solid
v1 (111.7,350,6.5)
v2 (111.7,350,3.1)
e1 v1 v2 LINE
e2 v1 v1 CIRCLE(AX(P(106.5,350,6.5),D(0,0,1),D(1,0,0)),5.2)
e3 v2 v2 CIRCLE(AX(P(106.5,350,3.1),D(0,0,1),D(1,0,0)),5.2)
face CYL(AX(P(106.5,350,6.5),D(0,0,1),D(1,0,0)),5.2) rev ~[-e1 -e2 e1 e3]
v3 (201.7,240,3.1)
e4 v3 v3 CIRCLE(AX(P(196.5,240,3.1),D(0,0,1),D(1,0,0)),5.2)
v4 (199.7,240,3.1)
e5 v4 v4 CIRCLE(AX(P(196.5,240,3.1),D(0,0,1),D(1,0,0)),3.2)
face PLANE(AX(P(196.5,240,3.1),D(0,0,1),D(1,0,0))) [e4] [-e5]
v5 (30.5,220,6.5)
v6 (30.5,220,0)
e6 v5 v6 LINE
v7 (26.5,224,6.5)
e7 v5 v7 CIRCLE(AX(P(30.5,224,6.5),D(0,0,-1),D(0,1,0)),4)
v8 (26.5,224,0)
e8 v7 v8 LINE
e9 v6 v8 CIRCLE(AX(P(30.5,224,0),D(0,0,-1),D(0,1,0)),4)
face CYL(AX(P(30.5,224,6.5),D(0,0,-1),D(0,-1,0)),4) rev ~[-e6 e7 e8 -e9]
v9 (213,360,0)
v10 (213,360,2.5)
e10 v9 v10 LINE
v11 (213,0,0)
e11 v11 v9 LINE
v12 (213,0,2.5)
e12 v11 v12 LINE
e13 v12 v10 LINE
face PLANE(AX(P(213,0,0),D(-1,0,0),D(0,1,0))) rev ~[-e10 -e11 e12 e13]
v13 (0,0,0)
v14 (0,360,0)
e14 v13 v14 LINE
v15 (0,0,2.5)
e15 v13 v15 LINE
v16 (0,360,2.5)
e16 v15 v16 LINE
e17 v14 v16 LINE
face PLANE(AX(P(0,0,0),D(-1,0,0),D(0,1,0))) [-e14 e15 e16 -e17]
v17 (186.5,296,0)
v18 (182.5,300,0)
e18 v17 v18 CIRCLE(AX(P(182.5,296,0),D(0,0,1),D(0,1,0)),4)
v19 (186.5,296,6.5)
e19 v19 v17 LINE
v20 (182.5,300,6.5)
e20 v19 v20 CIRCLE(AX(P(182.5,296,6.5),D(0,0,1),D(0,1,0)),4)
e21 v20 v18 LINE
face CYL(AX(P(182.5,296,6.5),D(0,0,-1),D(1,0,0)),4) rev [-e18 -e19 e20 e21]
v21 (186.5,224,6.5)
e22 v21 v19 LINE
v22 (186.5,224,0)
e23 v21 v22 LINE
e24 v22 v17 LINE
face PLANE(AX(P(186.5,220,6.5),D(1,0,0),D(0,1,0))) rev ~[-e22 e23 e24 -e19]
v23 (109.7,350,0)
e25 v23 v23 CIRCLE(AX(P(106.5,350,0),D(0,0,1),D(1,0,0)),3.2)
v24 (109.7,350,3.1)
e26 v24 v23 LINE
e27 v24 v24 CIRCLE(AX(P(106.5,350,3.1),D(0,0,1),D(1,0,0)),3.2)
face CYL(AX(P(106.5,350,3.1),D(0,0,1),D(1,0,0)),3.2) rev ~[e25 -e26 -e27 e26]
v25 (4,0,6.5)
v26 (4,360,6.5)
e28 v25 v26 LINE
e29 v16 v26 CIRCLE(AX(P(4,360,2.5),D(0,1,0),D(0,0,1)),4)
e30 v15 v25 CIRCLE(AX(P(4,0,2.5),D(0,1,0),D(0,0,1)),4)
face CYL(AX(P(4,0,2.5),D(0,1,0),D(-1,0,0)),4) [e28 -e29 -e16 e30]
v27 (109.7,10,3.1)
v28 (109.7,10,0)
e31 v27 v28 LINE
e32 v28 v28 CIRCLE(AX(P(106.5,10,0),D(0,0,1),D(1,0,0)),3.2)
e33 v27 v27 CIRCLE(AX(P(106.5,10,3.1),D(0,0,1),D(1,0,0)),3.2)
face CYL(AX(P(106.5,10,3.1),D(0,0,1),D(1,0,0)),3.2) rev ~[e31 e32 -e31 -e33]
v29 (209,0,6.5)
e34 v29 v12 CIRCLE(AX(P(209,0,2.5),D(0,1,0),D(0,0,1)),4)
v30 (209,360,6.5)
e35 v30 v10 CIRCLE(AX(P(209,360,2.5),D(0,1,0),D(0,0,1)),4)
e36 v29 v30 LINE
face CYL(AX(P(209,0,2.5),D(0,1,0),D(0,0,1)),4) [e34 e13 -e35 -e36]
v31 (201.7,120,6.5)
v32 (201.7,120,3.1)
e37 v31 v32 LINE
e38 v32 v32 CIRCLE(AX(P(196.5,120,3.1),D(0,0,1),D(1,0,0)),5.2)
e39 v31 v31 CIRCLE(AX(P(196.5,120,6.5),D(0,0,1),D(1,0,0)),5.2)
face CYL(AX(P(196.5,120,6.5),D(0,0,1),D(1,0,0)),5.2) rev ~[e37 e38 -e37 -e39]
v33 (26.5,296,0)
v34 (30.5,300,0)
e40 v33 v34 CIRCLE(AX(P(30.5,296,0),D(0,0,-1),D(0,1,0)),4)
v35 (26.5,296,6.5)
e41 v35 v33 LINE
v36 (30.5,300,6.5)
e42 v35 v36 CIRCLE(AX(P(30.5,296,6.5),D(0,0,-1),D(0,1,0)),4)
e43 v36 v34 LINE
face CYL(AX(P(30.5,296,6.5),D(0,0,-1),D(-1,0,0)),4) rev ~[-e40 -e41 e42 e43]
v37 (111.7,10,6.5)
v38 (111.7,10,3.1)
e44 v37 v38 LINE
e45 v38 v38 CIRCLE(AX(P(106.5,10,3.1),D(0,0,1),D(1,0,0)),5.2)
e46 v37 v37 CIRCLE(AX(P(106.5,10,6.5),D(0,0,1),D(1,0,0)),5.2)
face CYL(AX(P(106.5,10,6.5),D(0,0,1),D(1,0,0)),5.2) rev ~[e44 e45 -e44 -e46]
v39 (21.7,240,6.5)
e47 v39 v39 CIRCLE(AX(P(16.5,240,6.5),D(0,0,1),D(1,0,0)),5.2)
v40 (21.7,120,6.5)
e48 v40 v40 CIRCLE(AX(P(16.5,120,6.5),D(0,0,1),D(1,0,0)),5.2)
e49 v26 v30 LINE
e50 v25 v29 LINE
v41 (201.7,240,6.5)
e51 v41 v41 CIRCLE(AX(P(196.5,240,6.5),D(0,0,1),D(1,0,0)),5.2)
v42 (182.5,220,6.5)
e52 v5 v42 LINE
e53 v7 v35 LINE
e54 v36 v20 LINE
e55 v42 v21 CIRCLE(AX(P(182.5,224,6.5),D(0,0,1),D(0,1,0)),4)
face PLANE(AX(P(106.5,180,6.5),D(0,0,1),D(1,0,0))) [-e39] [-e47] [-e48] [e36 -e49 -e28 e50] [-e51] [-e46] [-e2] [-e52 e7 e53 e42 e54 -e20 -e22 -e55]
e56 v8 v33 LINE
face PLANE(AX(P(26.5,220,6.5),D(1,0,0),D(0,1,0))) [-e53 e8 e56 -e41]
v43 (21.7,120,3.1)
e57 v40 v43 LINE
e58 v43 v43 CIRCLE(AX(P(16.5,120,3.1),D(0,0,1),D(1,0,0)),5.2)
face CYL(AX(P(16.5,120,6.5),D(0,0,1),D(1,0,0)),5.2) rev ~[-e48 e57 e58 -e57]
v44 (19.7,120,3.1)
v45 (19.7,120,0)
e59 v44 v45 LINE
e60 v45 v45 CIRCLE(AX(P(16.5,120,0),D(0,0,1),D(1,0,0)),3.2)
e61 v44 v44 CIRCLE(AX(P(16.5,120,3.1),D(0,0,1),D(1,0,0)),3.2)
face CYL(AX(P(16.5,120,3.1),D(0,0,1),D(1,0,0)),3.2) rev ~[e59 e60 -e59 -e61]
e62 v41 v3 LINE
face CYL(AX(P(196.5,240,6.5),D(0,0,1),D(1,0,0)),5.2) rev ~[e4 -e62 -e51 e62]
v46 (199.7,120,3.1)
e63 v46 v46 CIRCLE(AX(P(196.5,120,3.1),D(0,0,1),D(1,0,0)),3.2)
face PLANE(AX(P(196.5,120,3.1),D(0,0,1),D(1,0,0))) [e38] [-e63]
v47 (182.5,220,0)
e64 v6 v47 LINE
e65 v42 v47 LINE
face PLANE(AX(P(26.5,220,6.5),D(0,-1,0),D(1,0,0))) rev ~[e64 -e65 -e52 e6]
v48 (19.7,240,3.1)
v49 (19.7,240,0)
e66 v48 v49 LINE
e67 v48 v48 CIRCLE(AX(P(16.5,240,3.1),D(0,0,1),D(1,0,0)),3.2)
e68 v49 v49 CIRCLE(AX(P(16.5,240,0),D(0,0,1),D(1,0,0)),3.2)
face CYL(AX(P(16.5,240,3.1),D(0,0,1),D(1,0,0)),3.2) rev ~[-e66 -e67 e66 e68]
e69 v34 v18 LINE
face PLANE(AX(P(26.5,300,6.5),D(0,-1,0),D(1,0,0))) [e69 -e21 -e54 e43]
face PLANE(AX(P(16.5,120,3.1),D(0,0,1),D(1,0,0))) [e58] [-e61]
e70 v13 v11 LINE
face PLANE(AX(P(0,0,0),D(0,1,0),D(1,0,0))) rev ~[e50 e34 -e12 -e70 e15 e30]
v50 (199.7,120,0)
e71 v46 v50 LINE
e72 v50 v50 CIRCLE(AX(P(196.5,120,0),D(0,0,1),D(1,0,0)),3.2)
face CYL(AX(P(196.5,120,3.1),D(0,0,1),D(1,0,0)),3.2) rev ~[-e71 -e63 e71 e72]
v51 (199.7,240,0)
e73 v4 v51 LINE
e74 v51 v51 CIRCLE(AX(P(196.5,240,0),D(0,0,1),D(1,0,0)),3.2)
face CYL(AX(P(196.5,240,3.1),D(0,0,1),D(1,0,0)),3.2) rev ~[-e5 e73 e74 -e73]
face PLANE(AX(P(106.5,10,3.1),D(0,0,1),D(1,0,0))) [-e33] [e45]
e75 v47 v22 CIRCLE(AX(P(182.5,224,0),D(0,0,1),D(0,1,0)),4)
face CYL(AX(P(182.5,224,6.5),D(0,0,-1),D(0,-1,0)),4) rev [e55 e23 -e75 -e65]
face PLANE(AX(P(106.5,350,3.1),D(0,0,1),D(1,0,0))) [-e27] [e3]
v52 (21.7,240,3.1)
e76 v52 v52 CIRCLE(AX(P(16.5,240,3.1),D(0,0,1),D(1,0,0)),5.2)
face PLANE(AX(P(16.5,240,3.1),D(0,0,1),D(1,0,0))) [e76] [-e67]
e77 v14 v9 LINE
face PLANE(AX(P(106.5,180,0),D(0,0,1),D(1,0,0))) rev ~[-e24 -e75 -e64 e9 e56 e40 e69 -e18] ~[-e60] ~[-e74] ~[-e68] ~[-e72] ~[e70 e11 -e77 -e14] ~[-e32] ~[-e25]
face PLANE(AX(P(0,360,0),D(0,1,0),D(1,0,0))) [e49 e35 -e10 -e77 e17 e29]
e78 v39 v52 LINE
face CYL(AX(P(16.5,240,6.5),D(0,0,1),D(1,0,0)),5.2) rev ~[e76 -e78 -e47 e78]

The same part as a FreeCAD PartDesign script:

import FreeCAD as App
import Part
import Sketcher

V = App.Vector


def edges_at(feature, points):
    """Names of the edges that pass closest to the given points."""
    edges = feature.Shape.Edges
    near = lambda p: min(range(len(edges)), key=lambda i: edges[i].distToShape(Part.Vertex(*p))[0])
    return sorted({f"Edge{near(p) + 1}" for p in points})


def add_polygon(sketch, points):
    """Adds a closed chain of lines whose ends are joined by coincident constraints."""
    first, n = sketch.GeometryCount, len(points)
    for a, b in zip(points, points[1:] + points[:1]):
        sketch.addGeometry(Part.LineSegment(App.Vector(*a, 0), App.Vector(*b, 0)), False)
    for i in range(n):
        sketch.addConstraint(Sketcher.Constraint("Coincident", first + i, 2, first + (i + 1) % n, 1))

doc = App.newDocument("Part")
body = doc.addObject("PartDesign::Body", "Body")

# Sketch on XY plane
sketch1 = body.newObject("Sketcher::SketchObject", "Sketch")
sketch1.AttachmentSupport = (doc.getObject("XY_Plane"), [""])
sketch1.MapMode = "FlatFace"
add_polygon(sketch1, [(0, 360), (0, 0), (213, 0), (213, 360)])  # lines 0-3
sketch1.addConstraint([
    Sketcher.Constraint("Vertical", 0),
    Sketcher.Constraint("Horizontal", 1),
    Sketcher.Constraint("Vertical", 2),
    Sketcher.Constraint("Horizontal", 3),
    Sketcher.Constraint("Coincident", 0, 2, -1, 1),
    Sketcher.Constraint("DistanceX", 1, 1, 1, 2, 213.0),
    Sketcher.Constraint("DistanceY", 0, 2, 0, 1, 360.0),
])
pad1 = body.newObject("PartDesign::Pad", "Pad")
pad1.Profile = sketch1
pad1.Length = 6.5

# Sketch on XY plane
sketch2 = body.newObject("Sketcher::SketchObject", "Sketch001")
sketch2.AttachmentSupport = (doc.getObject("XY_Plane"), [""])
sketch2.MapMode = "FlatFace"
sketch2.AttachmentOffset = App.Placement(V(0, 0, 6.5), App.Rotation())
sketch2.addGeometry([
    Part.Circle(V(106, 350, 0), V(0, 0, 1), 5),  # 0
    Part.Circle(V(16, 240, 0), V(0, 0, 1), 5),  # 1
    Part.Circle(V(16, 120, 0), V(0, 0, 1), 5),  # 2
    Part.Circle(V(196, 240, 0), V(0, 0, 1), 5),  # 3
    Part.Circle(V(196, 120, 0), V(0, 0, 1), 5),  # 4
    Part.Circle(V(106, 10, 0), V(0, 0, 1), 5),  # 5
], False)
sketch2.addConstraint([
    Sketcher.Constraint("Equal", 0, 1),
    Sketcher.Constraint("Equal", 1, 2),
    Sketcher.Constraint("Equal", 2, 3),
    Sketcher.Constraint("Equal", 3, 4),
    Sketcher.Constraint("Equal", 4, 5),
    Sketcher.Constraint("Horizontal", 1, 3, 3, 3),
    Sketcher.Constraint("Horizontal", 2, 3, 4, 3),
    Sketcher.Constraint("Vertical", 1, 3, 2, 3),
    Sketcher.Constraint("Vertical", 3, 3, 4, 3),
    Sketcher.Constraint("Vertical", 0, 3, 5, 3),
    Sketcher.Constraint("Diameter", 0, 10.4),
    Sketcher.Constraint("DistanceY", -1, 1, 0, 3, 350.0),
    Sketcher.Constraint("DistanceY", -1, 1, 1, 3, 240.0),
    Sketcher.Constraint("DistanceY", -1, 1, 2, 3, 120.0),
    Sketcher.Constraint("DistanceY", -1, 1, 5, 3, 10.0),
    Sketcher.Constraint("DistanceX", 1, 3, 0, 3, 90.0),
    Sketcher.Constraint("DistanceX", 0, 3, 3, 3, 90.0),
    Sketcher.Constraint("DistanceX", -1, 1, 0, 3, 106.5),
])
pocket1 = body.newObject("PartDesign::Pocket", "Pocket")
pocket1.Profile = sketch2
pocket1.Length = 3.4

# Sketch on XY plane
sketch3 = body.newObject("Sketcher::SketchObject", "Sketch002")
sketch3.AttachmentSupport = (doc.getObject("XY_Plane"), [""])
sketch3.MapMode = "FlatFace"
sketch3.AttachmentOffset = App.Placement(V(0, 0, 3.1), App.Rotation())
sketch3.addGeometry([
    Part.Circle(V(106.5, 350, 0), V(0, 0, 1), 3.2),  # 0
    Part.Circle(V(16.5, 240, 0), V(0, 0, 1), 3.2),  # 1
    Part.Circle(V(16.5, 120, 0), V(0, 0, 1), 3.2),  # 2
    Part.Circle(V(196.5, 240, 0), V(0, 0, 1), 3.2),  # 3
    Part.Circle(V(196.5, 120, 0), V(0, 0, 1), 3.2),  # 4
    Part.Circle(V(106.5, 10, 0), V(0, 0, 1), 3.2),  # 5
], False)
sketch3.addConstraint([
    Sketcher.Constraint("Equal", 0, 1),
    Sketcher.Constraint("Equal", 1, 2),
    Sketcher.Constraint("Equal", 2, 3),
    Sketcher.Constraint("Equal", 3, 4),
    Sketcher.Constraint("Equal", 4, 5),
    Sketcher.Constraint("Horizontal", 1, 3, 3, 3),
    Sketcher.Constraint("Horizontal", 2, 3, 4, 3),
    Sketcher.Constraint("Vertical", 1, 3, 2, 3),
    Sketcher.Constraint("Vertical", 3, 3, 4, 3),
    Sketcher.Constraint("Vertical", 0, 3, 5, 3),
    Sketcher.Constraint("Diameter", 0, 6.4),
    Sketcher.Constraint("DistanceY", -1, 1, 0, 3, 350.0),
    Sketcher.Constraint("DistanceY", -1, 1, 1, 3, 240.0),
    Sketcher.Constraint("DistanceY", -1, 1, 2, 3, 120.0),
    Sketcher.Constraint("DistanceY", -1, 1, 5, 3, 10.0),
    Sketcher.Constraint("DistanceX", 1, 3, 0, 3, 90.0),
    Sketcher.Constraint("DistanceX", 0, 3, 3, 3, 90.0),
    Sketcher.Constraint("DistanceX", -1, 1, 0, 3, 106.5),
])
pocket2 = body.newObject("PartDesign::Pocket", "Pocket001")
pocket2.Profile = sketch3
pocket2.Length = 3.1
doc.recompute()

fillet = body.newObject("PartDesign::Fillet", "Fillet")
fillet.Base = (pocket2, edges_at(pocket2, [(213, 180, 6.5), (0, 180, 6.5)]))
fillet.Radius = 4

# Sketch on XY plane
sketch4 = body.newObject("Sketcher::SketchObject", "Sketch003")
sketch4.AttachmentSupport = (doc.getObject("XY_Plane"), [""])
sketch4.MapMode = "FlatFace"
sketch4.AttachmentOffset = App.Placement(V(0, 0, 6.5), App.Rotation())
add_polygon(sketch4, [(26, 300), (26, 220), (186, 220), (186, 300)])  # lines 0-3
sketch4.addConstraint([
    Sketcher.Constraint("Vertical", 0),
    Sketcher.Constraint("Horizontal", 1),
    Sketcher.Constraint("Vertical", 2),
    Sketcher.Constraint("Horizontal", 3),
    Sketcher.Constraint("DistanceX", 1, 1, 1, 2, 160.0),
    Sketcher.Constraint("DistanceY", 0, 2, 0, 1, 80.0),
    Sketcher.Constraint("DistanceY", -1, 1, 0, 2, 220.0),
    Sketcher.Constraint("DistanceX", -1, 1, 0, 2, 26.5),
])
pocket3 = body.newObject("PartDesign::Pocket", "Pocket002")
pocket3.Profile = sketch4
pocket3.Length = 6.5
doc.recompute()

fillet2 = body.newObject("PartDesign::Fillet", "Fillet001")
fillet2.Base = (pocket3, edges_at(pocket3, [(26.5, 220, 3.25)]))
fillet2.Radius = 4
doc.recompute()

fillet3 = body.newObject("PartDesign::Fillet", "Fillet002")
fillet3.Base = (fillet2, edges_at(fillet2, [(186.5, 220, 3.25), (186.5, 300, 3.25), (26.5, 300, 3.25)]))
fillet3.Radius = 4

doc.recompute()
